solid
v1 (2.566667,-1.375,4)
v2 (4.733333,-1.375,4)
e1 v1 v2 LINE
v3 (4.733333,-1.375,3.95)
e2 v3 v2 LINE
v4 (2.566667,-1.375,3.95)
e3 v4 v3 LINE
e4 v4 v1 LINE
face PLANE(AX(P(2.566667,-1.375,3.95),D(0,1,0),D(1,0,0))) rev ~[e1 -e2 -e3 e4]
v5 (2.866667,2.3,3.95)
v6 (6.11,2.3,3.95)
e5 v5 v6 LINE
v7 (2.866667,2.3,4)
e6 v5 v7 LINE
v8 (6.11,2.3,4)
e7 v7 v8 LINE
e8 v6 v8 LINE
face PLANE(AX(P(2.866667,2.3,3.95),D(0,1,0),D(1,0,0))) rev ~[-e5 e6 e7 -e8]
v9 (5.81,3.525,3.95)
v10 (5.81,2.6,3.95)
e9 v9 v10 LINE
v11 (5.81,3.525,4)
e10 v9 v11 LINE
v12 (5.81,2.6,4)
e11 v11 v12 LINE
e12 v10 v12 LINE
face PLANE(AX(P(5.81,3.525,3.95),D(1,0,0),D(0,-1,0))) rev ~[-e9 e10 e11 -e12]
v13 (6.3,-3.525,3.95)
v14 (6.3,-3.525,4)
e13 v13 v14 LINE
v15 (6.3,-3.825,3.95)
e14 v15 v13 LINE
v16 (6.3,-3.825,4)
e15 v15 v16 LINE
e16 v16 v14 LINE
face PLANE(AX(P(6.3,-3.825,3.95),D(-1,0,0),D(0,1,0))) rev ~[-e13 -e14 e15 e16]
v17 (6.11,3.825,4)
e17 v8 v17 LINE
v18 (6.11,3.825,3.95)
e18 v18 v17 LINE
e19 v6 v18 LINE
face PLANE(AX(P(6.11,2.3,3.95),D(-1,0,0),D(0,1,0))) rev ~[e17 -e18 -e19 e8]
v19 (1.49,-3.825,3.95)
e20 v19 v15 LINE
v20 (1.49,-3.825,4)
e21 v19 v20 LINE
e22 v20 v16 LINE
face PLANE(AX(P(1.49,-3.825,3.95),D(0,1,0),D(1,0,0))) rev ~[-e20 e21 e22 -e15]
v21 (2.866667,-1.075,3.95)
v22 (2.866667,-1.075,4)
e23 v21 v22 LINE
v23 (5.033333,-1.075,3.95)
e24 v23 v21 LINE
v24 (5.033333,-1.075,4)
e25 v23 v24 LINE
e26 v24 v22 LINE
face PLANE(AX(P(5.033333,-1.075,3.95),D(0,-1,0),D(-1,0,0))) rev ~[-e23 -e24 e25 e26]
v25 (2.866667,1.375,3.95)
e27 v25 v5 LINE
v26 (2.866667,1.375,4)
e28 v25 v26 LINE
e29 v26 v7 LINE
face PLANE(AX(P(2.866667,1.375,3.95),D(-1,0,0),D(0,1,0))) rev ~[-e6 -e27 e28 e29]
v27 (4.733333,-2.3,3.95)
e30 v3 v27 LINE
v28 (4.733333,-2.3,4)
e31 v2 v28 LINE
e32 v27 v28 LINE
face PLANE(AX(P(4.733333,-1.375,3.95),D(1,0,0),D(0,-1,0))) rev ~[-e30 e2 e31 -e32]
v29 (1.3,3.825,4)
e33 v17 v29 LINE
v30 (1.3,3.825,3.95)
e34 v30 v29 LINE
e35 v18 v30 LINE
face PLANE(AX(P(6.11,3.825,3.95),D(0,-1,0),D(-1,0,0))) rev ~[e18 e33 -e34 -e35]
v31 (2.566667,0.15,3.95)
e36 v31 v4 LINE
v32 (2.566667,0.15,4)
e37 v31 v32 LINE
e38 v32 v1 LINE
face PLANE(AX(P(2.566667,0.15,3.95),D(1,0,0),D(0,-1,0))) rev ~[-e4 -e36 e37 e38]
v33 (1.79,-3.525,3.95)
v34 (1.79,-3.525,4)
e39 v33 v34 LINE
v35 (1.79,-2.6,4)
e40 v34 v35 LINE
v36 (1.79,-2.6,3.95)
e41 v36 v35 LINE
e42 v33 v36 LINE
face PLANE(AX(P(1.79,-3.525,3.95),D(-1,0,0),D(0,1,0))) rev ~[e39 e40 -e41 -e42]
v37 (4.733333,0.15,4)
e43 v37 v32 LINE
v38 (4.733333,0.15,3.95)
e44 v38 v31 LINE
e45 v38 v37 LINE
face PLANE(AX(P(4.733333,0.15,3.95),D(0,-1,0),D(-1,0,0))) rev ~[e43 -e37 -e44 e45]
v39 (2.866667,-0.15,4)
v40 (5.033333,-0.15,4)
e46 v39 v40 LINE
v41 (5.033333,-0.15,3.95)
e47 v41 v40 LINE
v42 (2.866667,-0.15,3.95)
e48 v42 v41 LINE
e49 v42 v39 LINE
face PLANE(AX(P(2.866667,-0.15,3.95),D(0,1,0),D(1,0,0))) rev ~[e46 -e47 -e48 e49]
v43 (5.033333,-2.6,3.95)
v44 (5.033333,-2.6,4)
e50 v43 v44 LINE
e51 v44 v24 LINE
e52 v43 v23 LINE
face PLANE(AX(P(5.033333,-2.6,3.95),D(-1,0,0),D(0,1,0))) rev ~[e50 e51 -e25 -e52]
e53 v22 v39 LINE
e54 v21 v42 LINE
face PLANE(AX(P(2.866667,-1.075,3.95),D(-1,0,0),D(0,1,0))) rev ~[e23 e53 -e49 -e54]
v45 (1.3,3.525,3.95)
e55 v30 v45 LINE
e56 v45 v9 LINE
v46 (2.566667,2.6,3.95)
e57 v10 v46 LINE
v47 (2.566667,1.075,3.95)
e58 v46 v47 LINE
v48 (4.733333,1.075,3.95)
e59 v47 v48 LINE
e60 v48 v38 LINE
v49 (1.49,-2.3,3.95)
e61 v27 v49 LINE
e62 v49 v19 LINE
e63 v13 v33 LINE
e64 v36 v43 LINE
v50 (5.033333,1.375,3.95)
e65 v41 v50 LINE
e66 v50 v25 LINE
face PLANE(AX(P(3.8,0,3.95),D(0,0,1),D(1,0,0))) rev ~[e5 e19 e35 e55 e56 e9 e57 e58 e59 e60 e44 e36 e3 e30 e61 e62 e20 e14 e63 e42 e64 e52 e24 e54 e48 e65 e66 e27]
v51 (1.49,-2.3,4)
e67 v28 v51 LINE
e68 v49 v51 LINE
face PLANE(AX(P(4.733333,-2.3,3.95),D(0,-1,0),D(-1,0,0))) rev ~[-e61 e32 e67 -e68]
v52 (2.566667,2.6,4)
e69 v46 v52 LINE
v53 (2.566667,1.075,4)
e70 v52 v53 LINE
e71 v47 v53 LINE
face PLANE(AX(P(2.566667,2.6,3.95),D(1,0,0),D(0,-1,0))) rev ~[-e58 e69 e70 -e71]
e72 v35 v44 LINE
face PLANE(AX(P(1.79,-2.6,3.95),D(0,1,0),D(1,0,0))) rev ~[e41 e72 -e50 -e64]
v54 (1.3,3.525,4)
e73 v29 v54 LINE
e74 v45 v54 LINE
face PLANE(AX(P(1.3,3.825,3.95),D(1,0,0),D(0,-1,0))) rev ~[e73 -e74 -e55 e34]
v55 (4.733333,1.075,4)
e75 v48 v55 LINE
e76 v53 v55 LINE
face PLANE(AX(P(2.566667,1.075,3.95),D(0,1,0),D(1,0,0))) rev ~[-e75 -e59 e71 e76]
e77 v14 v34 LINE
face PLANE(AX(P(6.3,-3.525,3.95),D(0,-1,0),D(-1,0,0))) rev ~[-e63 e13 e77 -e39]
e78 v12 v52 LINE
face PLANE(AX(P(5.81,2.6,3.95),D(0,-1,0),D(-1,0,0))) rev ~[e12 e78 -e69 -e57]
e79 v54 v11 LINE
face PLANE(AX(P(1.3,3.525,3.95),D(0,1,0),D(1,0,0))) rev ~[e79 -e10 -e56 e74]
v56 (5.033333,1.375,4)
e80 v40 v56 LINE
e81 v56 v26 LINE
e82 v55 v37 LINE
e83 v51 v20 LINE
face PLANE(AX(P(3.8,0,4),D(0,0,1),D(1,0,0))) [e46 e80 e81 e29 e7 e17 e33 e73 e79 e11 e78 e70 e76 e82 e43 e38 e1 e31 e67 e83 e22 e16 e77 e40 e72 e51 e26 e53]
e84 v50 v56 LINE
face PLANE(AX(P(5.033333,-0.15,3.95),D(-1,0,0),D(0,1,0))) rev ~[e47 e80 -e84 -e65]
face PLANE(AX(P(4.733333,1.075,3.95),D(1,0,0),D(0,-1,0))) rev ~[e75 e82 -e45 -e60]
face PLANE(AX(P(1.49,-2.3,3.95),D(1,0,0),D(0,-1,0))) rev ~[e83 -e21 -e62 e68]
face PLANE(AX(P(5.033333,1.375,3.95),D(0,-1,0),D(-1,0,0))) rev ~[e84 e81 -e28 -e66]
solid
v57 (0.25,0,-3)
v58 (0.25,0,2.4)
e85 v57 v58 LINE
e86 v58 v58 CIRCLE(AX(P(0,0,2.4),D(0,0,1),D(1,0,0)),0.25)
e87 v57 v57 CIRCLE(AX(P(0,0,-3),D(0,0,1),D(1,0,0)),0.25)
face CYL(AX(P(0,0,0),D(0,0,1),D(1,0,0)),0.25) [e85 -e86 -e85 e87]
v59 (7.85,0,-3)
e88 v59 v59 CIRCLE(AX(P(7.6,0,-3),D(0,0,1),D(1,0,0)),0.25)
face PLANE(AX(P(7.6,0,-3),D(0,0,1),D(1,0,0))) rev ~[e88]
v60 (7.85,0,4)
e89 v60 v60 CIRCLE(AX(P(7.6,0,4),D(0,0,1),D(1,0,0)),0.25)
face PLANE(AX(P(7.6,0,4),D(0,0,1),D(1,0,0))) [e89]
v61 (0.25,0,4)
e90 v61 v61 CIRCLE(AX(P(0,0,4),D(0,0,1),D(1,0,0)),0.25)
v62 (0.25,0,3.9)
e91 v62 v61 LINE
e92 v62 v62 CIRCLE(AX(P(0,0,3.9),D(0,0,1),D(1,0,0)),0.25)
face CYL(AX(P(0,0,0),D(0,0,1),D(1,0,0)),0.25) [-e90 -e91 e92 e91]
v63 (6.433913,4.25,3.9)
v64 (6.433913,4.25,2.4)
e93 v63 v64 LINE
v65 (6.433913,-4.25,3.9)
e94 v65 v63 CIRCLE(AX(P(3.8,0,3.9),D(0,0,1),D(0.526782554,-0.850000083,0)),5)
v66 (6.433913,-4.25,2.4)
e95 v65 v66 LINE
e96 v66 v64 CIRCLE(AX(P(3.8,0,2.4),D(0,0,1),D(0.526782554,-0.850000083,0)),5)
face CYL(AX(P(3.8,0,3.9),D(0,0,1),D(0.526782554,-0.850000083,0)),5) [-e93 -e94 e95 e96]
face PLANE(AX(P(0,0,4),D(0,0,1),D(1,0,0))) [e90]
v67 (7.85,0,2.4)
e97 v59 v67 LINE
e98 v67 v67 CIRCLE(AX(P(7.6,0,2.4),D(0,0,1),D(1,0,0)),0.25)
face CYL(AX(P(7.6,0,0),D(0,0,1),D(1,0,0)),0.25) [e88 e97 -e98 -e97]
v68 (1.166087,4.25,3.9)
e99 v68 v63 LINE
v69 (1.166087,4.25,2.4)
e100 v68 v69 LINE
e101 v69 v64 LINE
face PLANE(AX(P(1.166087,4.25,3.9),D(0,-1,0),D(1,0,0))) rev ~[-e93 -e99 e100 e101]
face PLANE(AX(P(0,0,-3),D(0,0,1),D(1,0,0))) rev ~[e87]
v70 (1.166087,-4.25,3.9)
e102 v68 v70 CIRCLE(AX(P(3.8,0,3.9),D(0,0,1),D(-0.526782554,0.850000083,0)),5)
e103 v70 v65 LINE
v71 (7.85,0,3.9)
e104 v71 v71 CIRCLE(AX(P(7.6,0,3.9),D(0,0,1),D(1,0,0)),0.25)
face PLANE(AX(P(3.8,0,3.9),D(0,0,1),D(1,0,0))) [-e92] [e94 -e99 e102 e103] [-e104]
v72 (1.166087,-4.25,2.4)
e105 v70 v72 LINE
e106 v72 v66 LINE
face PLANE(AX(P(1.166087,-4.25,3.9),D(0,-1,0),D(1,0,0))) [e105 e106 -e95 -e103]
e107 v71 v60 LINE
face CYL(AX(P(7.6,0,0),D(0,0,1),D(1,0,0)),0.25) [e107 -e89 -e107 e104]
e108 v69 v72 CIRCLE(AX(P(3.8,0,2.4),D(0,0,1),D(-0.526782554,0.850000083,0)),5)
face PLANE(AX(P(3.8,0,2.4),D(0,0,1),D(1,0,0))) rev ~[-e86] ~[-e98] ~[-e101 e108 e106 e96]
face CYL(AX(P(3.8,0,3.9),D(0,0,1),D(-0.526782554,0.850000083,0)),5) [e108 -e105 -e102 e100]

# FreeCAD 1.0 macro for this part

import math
import FreeCAD as App
import Part
import Sketcher
from FreeCAD import Vector

doc = App.newDocument("Part")
params = doc.addObject("Spreadsheet::Sheet", "Params")
for row, (alias, value) in enumerate([
    ("sketch1_radius", "5 mm"),
    ("pad1_length", "1.5 mm"),
    ("sketch2_diameter", "0.5 mm"),
    ("pad2_length", "4 mm"),
    ("pad2_length2", "3 mm"),
    ("sketch3_height", "0.3 mm"),
    ("sketch3_width", "4.51 mm"),
    ("sketch3_width2", "4.81 mm"),
    ("pad3_length", "0.05 mm"),
], start=1):
    params.set(f"A{row}", alias)
    params.set(f"B{row}", "=" + value)
    params.setAlias(f"B{row}", alias)

body = doc.addObject("PartDesign::Body", "Body")

# Sketch on XY plane
sketch1 = body.newObject("Sketcher::SketchObject", "Sketch")
sketch1.AttachmentSupport = (doc.getObject("XY_Plane"), [""])
sketch1.MapMode = "FlatFace"
sketch1.AttachmentOffset = App.Placement(Vector(0, 0, 3.9), App.Rotation())
sketch1.addGeometry([
    Part.ArcOfCircle(Part.Circle(Vector(3.8, 0, 0), Vector(0, 0, 1), 5), math.radians(122), math.radians(238)),
    Part.LineSegment(Vector(1.2, -4.2, 0), Vector(6.4, -4.2, 0)),
    Part.ArcOfCircle(Part.Circle(Vector(3.8, 0, 0), Vector(0, 0, 1), 5), math.radians(-58), math.radians(58)),
    Part.LineSegment(Vector(6.4, 4.2, 0), Vector(1.2, 4.2, 0)),
], False)
sketch1.addConstraint([
    Sketcher.Constraint("Coincident", 0, 2, 1, 1),
    Sketcher.Constraint("Coincident", 1, 2, 2, 1),
    Sketcher.Constraint("Coincident", 2, 2, 3, 1),
    Sketcher.Constraint("Coincident", 3, 2, 0, 1),
    Sketcher.Constraint("Horizontal", 1),
    Sketcher.Constraint("Horizontal", 3),
    Sketcher.Constraint("Coincident", 2, 3, 0, 3),
    Sketcher.Constraint("Equal", 0, 2),
    Sketcher.Constraint("Symmetric", 1, 2, 2, 2, -1),
    Sketcher.Constraint("Radius", 0, 5.0),
    Sketcher.Constraint("DistanceX", -1, 1, 0, 3, 3.8),
    Sketcher.Constraint("DistanceY", 1, 2, 2, 2, 8.5),
])
sketch1.setExpression("Constraints[9]", "Params.sketch1_radius")
pad1 = body.newObject("PartDesign::Pad", "Pad")
pad1.Profile = sketch1
pad1.setExpression("Length", "Params.pad1_length")
pad1.Reversed = True
body2 = doc.addObject("PartDesign::Body", "Body001")
body2.AllowCompound = True

# Sketch on XY plane
sketch2 = body2.newObject("Sketcher::SketchObject", "Sketch001")
sketch2.AttachmentSupport = (doc.getObject("XY_Plane001"), [""])
sketch2.MapMode = "FlatFace"
sketch2.addGeometry([
    Part.Circle(Vector(0, 0, 0), Vector(0, 0, 1), 0.25),
    Part.Circle(Vector(7.6, 0, 0), Vector(0, 0, 1), 0.25),
], False)
sketch2.addConstraint([
    Sketcher.Constraint("Coincident", 0, 3, -1, 1),
    Sketcher.Constraint("Equal", 0, 1),
    Sketcher.Constraint("PointOnObject", 1, 3, -1),
    Sketcher.Constraint("Diameter", 0, 0.5),
    Sketcher.Constraint("DistanceX", -1, 1, 1, 3, 7.6),
])
sketch2.setExpression("Constraints[3]", "Params.sketch2_diameter")
pad2 = body2.newObject("PartDesign::Pad", "Pad001")
pad2.Profile = sketch2
pad2.Type = "TwoLengths"
pad2.setExpression("Length", "Params.pad2_length")
pad2.setExpression("Length2", "Params.pad2_length2")
body3 = doc.addObject("PartDesign::Body", "Body002")
body3.AllowCompound = True

# Sketch on XY plane
sketch3 = body3.newObject("Sketcher::SketchObject", "Sketch002")
sketch3.AttachmentSupport = (doc.getObject("XY_Plane002"), [""])
sketch3.MapMode = "FlatFace"
sketch3.AttachmentOffset = App.Placement(Vector(0, 0, 3.95), App.Rotation())
sketch3.addGeometry([
    Part.LineSegment(Vector(1.3, 3.52, 0), Vector(5.81, 3.52, 0)),  # 0
    Part.LineSegment(Vector(5.81, 3.52, 0), Vector(5.81, 2.6, 0)),  # 1
    Part.LineSegment(Vector(5.81, 2.6, 0), Vector(2.57, 2.6, 0)),  # 2
    Part.LineSegment(Vector(2.57, 2.6, 0), Vector(2.57, 1.07, 0)),  # 3
    Part.LineSegment(Vector(2.57, 1.07, 0), Vector(4.73, 1.07, 0)),  # 4
    Part.LineSegment(Vector(4.73, 1.07, 0), Vector(4.73, 0.15, 0)),  # 5
    Part.LineSegment(Vector(4.73, 0.15, 0), Vector(2.57, 0.15, 0)),  # 6
    Part.LineSegment(Vector(2.57, 0.15, 0), Vector(2.57, -1.38, 0)),  # 7
    Part.LineSegment(Vector(2.57, -1.38, 0), Vector(4.73, -1.38, 0)),  # 8
    Part.LineSegment(Vector(4.73, -1.38, 0), Vector(4.73, -2.3, 0)),  # 9
    Part.LineSegment(Vector(4.73, -2.3, 0), Vector(1.49, -2.3, 0)),  # 10
    Part.LineSegment(Vector(1.49, -2.3, 0), Vector(1.49, -3.83, 0)),  # 11
    Part.LineSegment(Vector(1.49, -3.83, 0), Vector(6.3, -3.83, 0)),  # 12
    Part.LineSegment(Vector(6.3, -3.83, 0), Vector(6.3, -3.52, 0)),  # 13
    Part.LineSegment(Vector(6.3, -3.52, 0), Vector(1.79, -3.52, 0)),  # 14
    Part.LineSegment(Vector(1.79, -3.52, 0), Vector(1.79, -2.6, 0)),  # 15
    Part.LineSegment(Vector(1.79, -2.6, 0), Vector(5.03, -2.6, 0)),  # 16
    Part.LineSegment(Vector(5.03, -2.6, 0), Vector(5.03, -1.07, 0)),  # 17
    Part.LineSegment(Vector(5.03, -1.07, 0), Vector(2.87, -1.07, 0)),  # 18
    Part.LineSegment(Vector(2.87, -1.07, 0), Vector(2.87, -0.15, 0)),  # 19
    Part.LineSegment(Vector(2.87, -0.15, 0), Vector(5.03, -0.15, 0)),  # 20
    Part.LineSegment(Vector(5.03, -0.15, 0), Vector(5.03, 1.38, 0)),  # 21
    Part.LineSegment(Vector(5.03, 1.38, 0), Vector(2.87, 1.38, 0)),  # 22
    Part.LineSegment(Vector(2.87, 1.38, 0), Vector(2.87, 2.3, 0)),  # 23
    Part.LineSegment(Vector(2.87, 2.3, 0), Vector(6.11, 2.3, 0)),  # 24
    Part.LineSegment(Vector(6.11, 2.3, 0), Vector(6.11, 3.83, 0)),  # 25
    Part.LineSegment(Vector(6.11, 3.83, 0), Vector(1.3, 3.83, 0)),  # 26
    Part.LineSegment(Vector(1.3, 3.83, 0), Vector(1.3, 3.52, 0)),  # 27
], False)
sketch3.addConstraint([
    Sketcher.Constraint("Coincident", 0, 2, 1, 1),
    Sketcher.Constraint("Coincident", 1, 2, 2, 1),
    Sketcher.Constraint("Coincident", 2, 2, 3, 1),
    Sketcher.Constraint("Coincident", 3, 2, 4, 1),
    Sketcher.Constraint("Coincident", 4, 2, 5, 1),
    Sketcher.Constraint("Coincident", 5, 2, 6, 1),
    Sketcher.Constraint("Coincident", 6, 2, 7, 1),
    Sketcher.Constraint("Coincident", 7, 2, 8, 1),
    Sketcher.Constraint("Coincident", 8, 2, 9, 1),
    Sketcher.Constraint("Coincident", 9, 2, 10, 1),
    Sketcher.Constraint("Coincident", 10, 2, 11, 1),
    Sketcher.Constraint("Coincident", 11, 2, 12, 1),
    Sketcher.Constraint("Coincident", 12, 2, 13, 1),
    Sketcher.Constraint("Coincident", 13, 2, 14, 1),
    Sketcher.Constraint("Coincident", 14, 2, 15, 1),
    Sketcher.Constraint("Coincident", 15, 2, 16, 1),
    Sketcher.Constraint("Coincident", 16, 2, 17, 1),
    Sketcher.Constraint("Coincident", 17, 2, 18, 1),
    Sketcher.Constraint("Coincident", 18, 2, 19, 1),
    Sketcher.Constraint("Coincident", 19, 2, 20, 1),
    Sketcher.Constraint("Coincident", 20, 2, 21, 1),
    Sketcher.Constraint("Coincident", 21, 2, 22, 1),
    Sketcher.Constraint("Coincident", 22, 2, 23, 1),
    Sketcher.Constraint("Coincident", 23, 2, 24, 1),
    Sketcher.Constraint("Coincident", 24, 2, 25, 1),
    Sketcher.Constraint("Coincident", 25, 2, 26, 1),
    Sketcher.Constraint("Coincident", 26, 2, 27, 1),
    Sketcher.Constraint("Coincident", 27, 2, 0, 1),
    Sketcher.Constraint("Horizontal", 0),
    Sketcher.Constraint("Vertical", 1),
    Sketcher.Constraint("Horizontal", 2),
    Sketcher.Constraint("Vertical", 3),
    Sketcher.Constraint("Horizontal", 4),
    Sketcher.Constraint("Vertical", 5),
    Sketcher.Constraint("Horizontal", 6),
    Sketcher.Constraint("Vertical", 7),
    Sketcher.Constraint("Horizontal", 8),
    Sketcher.Constraint("Vertical", 9),
    Sketcher.Constraint("Horizontal", 10),
    Sketcher.Constraint("Vertical", 11),
    Sketcher.Constraint("Horizontal", 12),
    Sketcher.Constraint("Vertical", 13),
    Sketcher.Constraint("Horizontal", 14),
    Sketcher.Constraint("Vertical", 15),
    Sketcher.Constraint("Horizontal", 16),
    Sketcher.Constraint("Vertical", 17),
    Sketcher.Constraint("Horizontal", 18),
    Sketcher.Constraint("Vertical", 19),
    Sketcher.Constraint("Horizontal", 20),
    Sketcher.Constraint("Vertical", 21),
    Sketcher.Constraint("Horizontal", 22),
    Sketcher.Constraint("Vertical", 23),
    Sketcher.Constraint("Horizontal", 24),
    Sketcher.Constraint("Vertical", 25),
    Sketcher.Constraint("Horizontal", 26),
    Sketcher.Constraint("Vertical", 27),
    Sketcher.Constraint("Vertical", 3, 2, 6, 2),
    Sketcher.Constraint("Vertical", 5, 2, 8, 2),
    Sketcher.Constraint("Vertical", 17, 2, 20, 2),
    Sketcher.Constraint("Vertical", 19, 2, 22, 2),
    Sketcher.Constraint("Equal", 2, 10),
    Sketcher.Constraint("Equal", 0, 14),
    Sketcher.Constraint("Equal", 10, 16),
    Sketcher.Constraint("Equal", 8, 18),
    Sketcher.Constraint("Equal", 16, 24),
    Sketcher.Constraint("Equal", 1, 5),
    Sketcher.Constraint("Equal", 3, 7),
    Sketcher.Constraint("Equal", 5, 9),
    Sketcher.Constraint("Equal", 7, 11),
    Sketcher.Constraint("Equal", 9, 15),
    Sketcher.Constraint("Equal", 11, 17),
    Sketcher.Constraint("Equal", 15, 19),
    Sketcher.Constraint("Equal", 17, 21),
    Sketcher.Constraint("Equal", 19, 23),
    Sketcher.Constraint("Equal", 21, 25),
    Sketcher.Constraint("DistanceY", 13, 1, 13, 2, 0.3),
    Sketcher.Constraint("DistanceX", 0, 1, 0, 2, 4.51),
    Sketcher.Constraint("DistanceX", 12, 1, 12, 2, 4.81),
    Sketcher.Constraint("DistanceY", -1, 1, 1, 2, 2.6),
    Sketcher.Constraint("DistanceY", 9, 2, -1, 1, 2.3),
    Sketcher.Constraint("DistanceX", -1, 1, 12, 2, 6.3),
    Sketcher.Constraint("DistanceY", 15, 2, -1, 1, 2.6),
    Sketcher.Constraint("DistanceX", -1, 1, 26, 2, 1.3),
    Sketcher.Constraint("DistanceX", 2, 2, 2, 1, 3.243333),
])
sketch3.setExpression("Constraints[75]", "Params.sketch3_height")
sketch3.setExpression("Constraints[76]", "Params.sketch3_width")
sketch3.setExpression("Constraints[77]", "Params.sketch3_width2")
pad3 = body3.newObject("PartDesign::Pad", "Pad002")
pad3.Profile = sketch3
pad3.setExpression("Length", "Params.pad3_length")
doc.recompute()

boolean = body3.newObject("PartDesign::Boolean", "Boolean")
boolean.Type = "Fuse"
boolean.addObjects([body])
doc.recompute()

boolean2 = body3.newObject("PartDesign::Boolean", "Boolean001")
boolean2.Type = "Fuse"
boolean2.addObjects([body2])

doc.recompute()
